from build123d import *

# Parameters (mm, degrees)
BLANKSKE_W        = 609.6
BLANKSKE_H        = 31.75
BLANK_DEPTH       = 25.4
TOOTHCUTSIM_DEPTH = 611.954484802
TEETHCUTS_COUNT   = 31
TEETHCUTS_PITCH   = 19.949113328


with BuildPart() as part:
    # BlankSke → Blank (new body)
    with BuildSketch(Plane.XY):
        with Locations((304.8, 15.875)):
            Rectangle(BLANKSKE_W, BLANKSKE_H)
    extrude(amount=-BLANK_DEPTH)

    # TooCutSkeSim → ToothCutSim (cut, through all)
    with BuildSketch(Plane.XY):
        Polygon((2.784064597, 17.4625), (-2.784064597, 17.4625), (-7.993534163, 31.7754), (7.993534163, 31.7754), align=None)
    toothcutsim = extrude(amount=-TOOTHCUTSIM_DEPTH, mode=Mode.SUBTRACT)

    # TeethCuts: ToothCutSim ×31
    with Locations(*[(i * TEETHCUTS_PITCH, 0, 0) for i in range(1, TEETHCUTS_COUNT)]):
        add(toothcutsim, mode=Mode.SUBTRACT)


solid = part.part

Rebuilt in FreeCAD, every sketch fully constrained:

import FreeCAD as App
import Part
import Sketcher
from FreeCAD import Vector
Q = App.Units.Quantity

doc = App.newDocument("Part")
body = doc.addObject("PartDesign::Body", "Body")

# Sketch on XY plane
sketch1 = body.newObject("Sketcher::SketchObject", "Sketch")
sketch1.AttachmentSupport = (doc.getObject("XY_Plane"), [""])
sketch1.MapMode = "FlatFace"
sketch1.addGeometry([
    Part.LineSegment(Vector(0, 31.75, 0), Vector(0, 0, 0)),
    Part.LineSegment(Vector(0, 0, 0), Vector(609.6, 0, 0)),
    Part.LineSegment(Vector(609.6, 0, 0), Vector(609.6, 31.75, 0)),
    Part.LineSegment(Vector(609.6, 31.75, 0), Vector(0, 31.75, 0)),
], False)
sketch1.addConstraint([
    Sketcher.Constraint("Coincident", 0, 2, 1, 1),
    Sketcher.Constraint("Coincident", 1, 2, 2, 1),
    Sketcher.Constraint("Coincident", 2, 2, 3, 1),
    Sketcher.Constraint("Coincident", 3, 2, 0, 1),
    Sketcher.Constraint("Vertical", 0),
    Sketcher.Constraint("Horizontal", 1),
    Sketcher.Constraint("Vertical", 2),
    Sketcher.Constraint("Horizontal", 3),
    Sketcher.Constraint("Coincident", 0, 2, -1, 1),
    Sketcher.Constraint("DistanceX", 1, 1, 1, 2, Q("24 in")),
    Sketcher.Constraint("DistanceY", 0, 2, 0, 1, Q("1.25 in")),
])
pad1 = body.newObject("PartDesign::Pad", "Pad")
pad1.Profile = sketch1
pad1.Length = Q("1 in")
pad1.Reversed = True

# Sketch on XY plane
sketch2 = body.newObject("Sketcher::SketchObject", "Sketch001")
sketch2.AttachmentSupport = (doc.getObject("XY_Plane"), [""])
sketch2.MapMode = "FlatFace"
sketch2.addGeometry([
    Part.LineSegment(Vector(-2.784065, 17.4625, 0), Vector(2.784065, 17.4625, 0)),
    Part.LineSegment(Vector(2.784065, 17.4625, 0), Vector(7.993534, 31.7754, 0)),
    Part.LineSegment(Vector(7.993534, 31.7754, 0), Vector(-7.993534, 31.7754, 0)),
    Part.LineSegment(Vector(-7.993534, 31.7754, 0), Vector(-2.784065, 17.4625, 0)),
], False)
sketch2.addConstraint([
    Sketcher.Constraint("Coincident", 0, 2, 1, 1),
    Sketcher.Constraint("Coincident", 1, 2, 2, 1),
    Sketcher.Constraint("Coincident", 2, 2, 3, 1),
    Sketcher.Constraint("Coincident", 3, 2, 0, 1),
    Sketcher.Constraint("Horizontal", 0),
    Sketcher.Constraint("Horizontal", 2),
    Sketcher.Constraint("Equal", 1, 3),
    Sketcher.Constraint("Angle", 1, Q("70 deg")),
    Sketcher.Constraint("DistanceY", -1, 1, 0, 2, Q("0.6875 in")),
    Sketcher.Constraint("DistanceY", -1, 1, 1, 2, Q("1.251 in")),
    Sketcher.Constraint("DistanceX", 0, 1, 0, 2, 5.568129),
    Sketcher.Constraint("DistanceX", -1, 1, 0, 2, 2.784065),
])
pocket1 = body.newObject("PartDesign::Pocket", "Pocket")
pocket1.Profile = sketch2
pocket1.Type = "ThroughAll"
doc.recompute()

linearpattern = body.newObject("PartDesign::LinearPattern", "LinearPattern")
linearpattern.Originals = [pocket1]
linearpattern.Direction = (doc.getObject("X_Axis"), [""])
linearpattern.Mode = "offset"
linearpattern.Offset = 19.949113
linearpattern.Occurrences = 31
body.Tip = linearpattern

doc.recompute()
